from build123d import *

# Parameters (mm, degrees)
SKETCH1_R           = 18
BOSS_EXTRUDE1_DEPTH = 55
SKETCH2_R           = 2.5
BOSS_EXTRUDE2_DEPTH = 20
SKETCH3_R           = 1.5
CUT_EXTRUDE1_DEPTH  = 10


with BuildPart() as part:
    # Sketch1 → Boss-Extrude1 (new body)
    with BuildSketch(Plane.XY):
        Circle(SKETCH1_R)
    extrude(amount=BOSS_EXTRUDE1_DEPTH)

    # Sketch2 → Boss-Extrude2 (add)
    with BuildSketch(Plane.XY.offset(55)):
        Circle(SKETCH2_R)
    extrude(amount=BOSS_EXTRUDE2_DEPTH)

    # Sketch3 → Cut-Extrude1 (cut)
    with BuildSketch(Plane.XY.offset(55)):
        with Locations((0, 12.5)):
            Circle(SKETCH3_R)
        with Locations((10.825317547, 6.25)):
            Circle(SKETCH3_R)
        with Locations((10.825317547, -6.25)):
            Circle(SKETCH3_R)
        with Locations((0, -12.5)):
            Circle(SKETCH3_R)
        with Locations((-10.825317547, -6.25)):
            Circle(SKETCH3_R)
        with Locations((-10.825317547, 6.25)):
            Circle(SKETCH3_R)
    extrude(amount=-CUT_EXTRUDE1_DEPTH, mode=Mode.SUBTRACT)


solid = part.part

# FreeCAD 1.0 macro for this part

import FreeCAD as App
import Part
import Sketcher
from FreeCAD import Vector

doc = App.newDocument("Part")
body = doc.addObject("PartDesign::Body", "Body")

# Sketch on XY plane
sketch1 = body.newObject("Sketcher::SketchObject", "Sketch")
sketch1.AttachmentSupport = (doc.getObject("XY_Plane"), [""])
sketch1.MapMode = "FlatFace"
sketch1.addGeometry(Part.Circle(Vector(0, 0, 0), Vector(0, 0, 1), 18), False)
sketch1.addConstraint([
    Sketcher.Constraint("Coincident", 0, 3, -1, 1),
    Sketcher.Constraint("Diameter", 0, 36.0),
])
pad1 = body.newObject("PartDesign::Pad", "Pad")
pad1.Profile = sketch1
pad1.Length = 55

# Sketch on XY plane
sketch2 = body.newObject("Sketcher::SketchObject", "Sketch001")
sketch2.AttachmentSupport = (doc.getObject("XY_Plane"), [""])
sketch2.MapMode = "FlatFace"
sketch2.AttachmentOffset = App.Placement(Vector(0, 0, 55), App.Rotation())
sketch2.addGeometry(Part.Circle(Vector(0, 0, 0), Vector(0, 0, 1), 2.5), False)
sketch2.addConstraint([
    Sketcher.Constraint("Coincident", 0, 3, -1, 1),
    Sketcher.Constraint("Diameter", 0, 5.0),
])
pad2 = body.newObject("PartDesign::Pad", "Pad001")
pad2.Profile = sketch2
pad2.Length = 20

# Sketch on XY plane
sketch3 = body.newObject("Sketcher::SketchObject", "Sketch002")
sketch3.AttachmentSupport = (doc.getObject("XY_Plane"), [""])
sketch3.MapMode = "FlatFace"
sketch3.AttachmentOffset = App.Placement(Vector(0, 0, 55), App.Rotation())
sketch3.addGeometry([
    Part.Circle(Vector(0, 12.5, 0), Vector(0, 0, 1), 1.5),  # 0
    Part.Circle(Vector(10.8, 6.2, 0), Vector(0, 0, 1), 1.5),  # 1
    Part.Circle(Vector(10.8, -6.2, 0), Vector(0, 0, 1), 1.5),  # 2
    Part.Circle(Vector(0, -12.5, 0), Vector(0, 0, 1), 1.5),  # 3
    Part.Circle(Vector(-10.8, -6.2, 0), Vector(0, 0, 1), 1.5),  # 4
    Part.Circle(Vector(-10.8, 6.2, 0), Vector(0, 0, 1), 1.5),  # 5
], False)
sketch3.addConstraint([
    Sketcher.Constraint("Equal", 0, 1),
    Sketcher.Constraint("Equal", 1, 2),
    Sketcher.Constraint("Equal", 2, 3),
    Sketcher.Constraint("Equal", 3, 4),
    Sketcher.Constraint("Equal", 4, 5),
    Sketcher.Constraint("Symmetric", 0, 3, 3, 3, -1, 1),
    Sketcher.Constraint("Symmetric", 1, 3, 4, 3, -1, 1),
    Sketcher.Constraint("Symmetric", 2, 3, 5, 3, -1, 1),
    Sketcher.Constraint("Symmetric", 2, 3, 4, 3, -2),
    Sketcher.Constraint("PointOnObject", 0, 3, -2),
    Sketcher.Constraint("Diameter", 0, 3.0),
    Sketcher.Constraint("DistanceY", 3, 3, 0, 3, 25.0),
    Sketcher.Constraint("DistanceY", 2, 3, 1, 3, 12.5),
    Sketcher.Constraint("DistanceX", -1, 1, 1, 3, 10.825318),
])
pocket1 = body.newObject("PartDesign::Pocket", "Pocket")
pocket1.Profile = sketch3
pocket1.Length = 10

doc.recompute()
